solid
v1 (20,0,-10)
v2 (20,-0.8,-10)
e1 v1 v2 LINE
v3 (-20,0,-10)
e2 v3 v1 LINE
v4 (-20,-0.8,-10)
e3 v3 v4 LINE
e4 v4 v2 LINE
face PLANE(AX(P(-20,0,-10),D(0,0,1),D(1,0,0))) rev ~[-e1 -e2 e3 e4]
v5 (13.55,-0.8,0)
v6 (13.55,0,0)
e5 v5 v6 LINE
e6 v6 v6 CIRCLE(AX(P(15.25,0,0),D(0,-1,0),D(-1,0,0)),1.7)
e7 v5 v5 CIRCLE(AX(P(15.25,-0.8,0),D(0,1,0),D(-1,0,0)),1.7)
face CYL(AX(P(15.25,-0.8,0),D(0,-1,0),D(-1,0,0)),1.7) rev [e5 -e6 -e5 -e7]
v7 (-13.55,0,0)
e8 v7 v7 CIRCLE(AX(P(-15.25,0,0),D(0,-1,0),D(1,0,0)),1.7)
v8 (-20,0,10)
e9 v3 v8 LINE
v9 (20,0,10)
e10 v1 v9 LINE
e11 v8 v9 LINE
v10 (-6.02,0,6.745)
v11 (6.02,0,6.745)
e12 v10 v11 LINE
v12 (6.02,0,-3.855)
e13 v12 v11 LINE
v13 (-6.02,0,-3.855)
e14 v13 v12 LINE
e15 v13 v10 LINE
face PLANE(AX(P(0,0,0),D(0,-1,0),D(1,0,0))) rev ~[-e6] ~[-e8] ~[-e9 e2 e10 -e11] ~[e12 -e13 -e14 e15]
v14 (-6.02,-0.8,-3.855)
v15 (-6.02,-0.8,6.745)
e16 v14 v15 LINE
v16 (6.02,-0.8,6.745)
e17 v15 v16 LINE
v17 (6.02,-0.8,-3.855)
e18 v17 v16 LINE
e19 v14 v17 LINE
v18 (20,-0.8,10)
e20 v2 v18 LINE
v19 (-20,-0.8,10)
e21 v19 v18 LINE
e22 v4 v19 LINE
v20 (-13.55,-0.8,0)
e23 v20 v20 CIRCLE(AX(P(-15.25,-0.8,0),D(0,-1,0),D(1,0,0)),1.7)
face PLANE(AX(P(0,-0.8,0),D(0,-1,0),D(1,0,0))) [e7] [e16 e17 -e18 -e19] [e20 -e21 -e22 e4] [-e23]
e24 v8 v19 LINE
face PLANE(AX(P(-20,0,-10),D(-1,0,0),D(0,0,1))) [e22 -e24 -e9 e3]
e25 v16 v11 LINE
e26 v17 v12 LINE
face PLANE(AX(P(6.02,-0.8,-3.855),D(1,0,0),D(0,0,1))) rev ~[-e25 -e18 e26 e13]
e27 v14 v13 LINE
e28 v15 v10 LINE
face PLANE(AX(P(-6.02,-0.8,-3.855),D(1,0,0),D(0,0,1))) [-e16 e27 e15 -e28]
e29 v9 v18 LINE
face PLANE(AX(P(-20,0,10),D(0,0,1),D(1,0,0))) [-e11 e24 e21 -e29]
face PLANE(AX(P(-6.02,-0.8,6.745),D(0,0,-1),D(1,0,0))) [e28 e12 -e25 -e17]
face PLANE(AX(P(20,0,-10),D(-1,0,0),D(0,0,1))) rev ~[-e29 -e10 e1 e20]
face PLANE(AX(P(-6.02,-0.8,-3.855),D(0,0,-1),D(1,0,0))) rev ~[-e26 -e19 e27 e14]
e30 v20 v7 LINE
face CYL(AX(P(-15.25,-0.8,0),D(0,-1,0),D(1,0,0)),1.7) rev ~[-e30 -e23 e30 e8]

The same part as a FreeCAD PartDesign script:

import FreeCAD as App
import Part
import Sketcher

V = App.Vector

doc = App.newDocument("Part")
body = doc.addObject("PartDesign::Body", "Body")

# Sketch on XZ plane
sketch1 = body.newObject("Sketcher::SketchObject", "Sketch")
sketch1.AttachmentSupport = (doc.getObject("XZ_Plane"), [""])
sketch1.MapMode = "FlatFace"
sketch1.addGeometry(Part.LineSegment(V(-20, 10, 0), V(-20, -10, 0)), False)
sketch1.addGeometry(Part.LineSegment(V(-20, -10, 0), V(20, -10, 0)), False)
sketch1.addGeometry(Part.LineSegment(V(20, -10, 0), V(20, 10, 0)), False)
sketch1.addGeometry(Part.LineSegment(V(20, 10, 0), V(-20, 10, 0)), False)
sketch1.addConstraint(Sketcher.Constraint("Coincident", 0, 2, 1, 1))
sketch1.addConstraint(Sketcher.Constraint("Coincident", 1, 2, 2, 1))
sketch1.addConstraint(Sketcher.Constraint("Coincident", 2, 2, 3, 1))
sketch1.addConstraint(Sketcher.Constraint("Coincident", 3, 2, 0, 1))
sketch1.addConstraint(Sketcher.Constraint("Vertical", 0))
sketch1.addConstraint(Sketcher.Constraint("Horizontal", 1))
sketch1.addConstraint(Sketcher.Constraint("Vertical", 2))
sketch1.addConstraint(Sketcher.Constraint("Horizontal", 3))
sketch1.addConstraint(Sketcher.Constraint("Symmetric", 0, 2, 2, 2, -1, 1))
sketch1.addConstraint(Sketcher.Constraint("DistanceX", 1, 1, 1, 2, 40.0))
sketch1.addConstraint(Sketcher.Constraint("DistanceY", 0, 2, 0, 1, 20.0))
pad1 = body.newObject("PartDesign::Pad", "Pad")
pad1.Profile = sketch1
pad1.Length = 0.8

# Sketch on XZ plane
sketch2 = body.newObject("Sketcher::SketchObject", "Sketch001")
sketch2.AttachmentSupport = (doc.getObject("XZ_Plane"), [""])
sketch2.MapMode = "FlatFace"
sketch2.AttachmentOffset = App.Placement(V(0, 0, 0.8), App.Rotation())
sketch2.addGeometry(Part.Circle(V(-15.25, 0, 0), V(0, 0, 1), 1.7), False)
sketch2.addConstraint(Sketcher.Constraint("PointOnObject", 0, 3, -1))
sketch2.addConstraint(Sketcher.Constraint("Diameter", 0, 3.4))
sketch2.addConstraint(Sketcher.Constraint("DistanceX", 0, 3, -1, 1, 15.25))
pocket1 = body.newObject("PartDesign::Pocket", "Pocket")
pocket1.Profile = sketch2
pocket1.Type = "ThroughAll"
doc.recompute()

mirrored = body.newObject("PartDesign::Mirrored", "Mirrored")
mirrored.Originals = [pocket1]
mirrored.MirrorPlane = (doc.getObject("YZ_Plane"), [""])
body.Tip = mirrored

# Sketch on XZ plane
sketch3 = body.newObject("Sketcher::SketchObject", "Sketch002")
sketch3.AttachmentSupport = (doc.getObject("XZ_Plane"), [""])
sketch3.MapMode = "FlatFace"
sketch3.AttachmentOffset = App.Placement(V(0, 0, 0.8), App.Rotation())
sketch3.addGeometry(Part.LineSegment(V(-6.02, 6.745, 0), V(-6.02, -3.855, 0)), False)
sketch3.addGeometry(Part.LineSegment(V(-6.02, -3.855, 0), V(6.02, -3.855, 0)), False)
sketch3.addGeometry(Part.LineSegment(V(6.02, -3.855, 0), V(6.02, 6.745, 0)), False)
sketch3.addGeometry(Part.LineSegment(V(6.02, 6.745, 0), V(-6.02, 6.745, 0)), False)
sketch3.addConstraint(Sketcher.Constraint("Coincident", 0, 2, 1, 1))
sketch3.addConstraint(Sketcher.Constraint("Coincident", 1, 2, 2, 1))
sketch3.addConstraint(Sketcher.Constraint("Coincident", 2, 2, 3, 1))
sketch3.addConstraint(Sketcher.Constraint("Coincident", 3, 2, 0, 1))
sketch3.addConstraint(Sketcher.Constraint("Vertical", 0))
sketch3.addConstraint(Sketcher.Constraint("Horizontal", 1))
sketch3.addConstraint(Sketcher.Constraint("Vertical", 2))
sketch3.addConstraint(Sketcher.Constraint("Horizontal", 3))
sketch3.addConstraint(Sketcher.Constraint("DistanceY", 0, 2, 0, 1, 10.6))
sketch3.addConstraint(Sketcher.Constraint("DistanceX", 1, 1, 1, 2, 12.04))
sketch3.addConstraint(Sketcher.Constraint("DistanceX", 0, 2, -1, 1, 6.02))
sketch3.addConstraint(Sketcher.Constraint("DistanceY", 0, 2, -1, 1, 3.855))
pocket2 = body.newObject("PartDesign::Pocket", "Pocket001")
pocket2.Profile = sketch3
pocket2.Type = "ThroughAll"

doc.recompute()
